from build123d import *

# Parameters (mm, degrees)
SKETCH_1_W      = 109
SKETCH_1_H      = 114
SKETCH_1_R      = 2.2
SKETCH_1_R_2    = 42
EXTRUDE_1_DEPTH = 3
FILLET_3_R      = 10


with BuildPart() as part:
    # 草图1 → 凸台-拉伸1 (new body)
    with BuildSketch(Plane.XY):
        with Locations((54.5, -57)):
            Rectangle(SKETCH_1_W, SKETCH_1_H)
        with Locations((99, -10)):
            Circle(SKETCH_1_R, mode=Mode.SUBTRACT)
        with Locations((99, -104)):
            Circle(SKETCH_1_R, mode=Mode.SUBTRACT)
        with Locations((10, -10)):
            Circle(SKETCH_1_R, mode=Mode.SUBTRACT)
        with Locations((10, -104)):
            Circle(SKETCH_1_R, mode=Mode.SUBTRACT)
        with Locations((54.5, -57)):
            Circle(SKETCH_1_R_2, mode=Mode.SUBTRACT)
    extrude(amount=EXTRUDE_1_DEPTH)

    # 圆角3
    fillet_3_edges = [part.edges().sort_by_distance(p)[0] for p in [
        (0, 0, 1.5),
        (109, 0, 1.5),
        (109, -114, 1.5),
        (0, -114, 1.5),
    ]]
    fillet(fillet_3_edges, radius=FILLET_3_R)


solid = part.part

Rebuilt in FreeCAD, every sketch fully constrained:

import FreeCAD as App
import Part
import Sketcher

V = App.Vector
Q = App.Units.Quantity


def edges_at(feature, points):
    """Names of the edges that pass closest to the given points."""
    edges = feature.Shape.Edges
    near = lambda p: min(range(len(edges)), key=lambda i: edges[i].distToShape(Part.Vertex(*p))[0])
    return sorted({f"Edge{near(p) + 1}" for p in points})

doc = App.newDocument("Part")
body = doc.addObject("PartDesign::Body", "Body")

# Sketch on XY plane
sketch1 = body.newObject("Sketcher::SketchObject", "Sketch")
sketch1.AttachmentSupport = (doc.getObject("XY_Plane"), [""])
sketch1.MapMode = "FlatFace"
sketch1.addGeometry([
    Part.LineSegment(V(0, 0, 0), V(0, -114, 0)),  # 0
    Part.LineSegment(V(0, -114, 0), V(109, -114, 0)),  # 1
    Part.LineSegment(V(109, -114, 0), V(109, 0, 0)),  # 2
    Part.LineSegment(V(109, 0, 0), V(0, 0, 0)),  # 3
    Part.Circle(V(10, -104, 0), V(0, 0, 1), 2.2),  # 4
    Part.Circle(V(99, -104, 0), V(0, 0, 1), 2.2),  # 5
    Part.Circle(V(10, -10, 0), V(0, 0, 1), 2.2),  # 6
    Part.Circle(V(54.5, -57, 0), V(0, 0, 1), 42),  # 7
    Part.Circle(V(99, -10, 0), V(0, 0, 1), 2.2),  # 8
], False)
sketch1.addConstraint([
    Sketcher.Constraint("Coincident", 0, 2, 1, 1),
    Sketcher.Constraint("Coincident", 1, 2, 2, 1),
    Sketcher.Constraint("Coincident", 2, 2, 3, 1),
    Sketcher.Constraint("Coincident", 3, 2, 0, 1),
    Sketcher.Constraint("Vertical", 0),
    Sketcher.Constraint("Horizontal", 1),
    Sketcher.Constraint("Vertical", 2),
    Sketcher.Constraint("Horizontal", 3),
    Sketcher.Constraint("Coincident", 3, 2, -1, 1),
    Sketcher.Constraint("Equal", 4, 5),
    Sketcher.Constraint("Equal", 5, 6),
    Sketcher.Constraint("Equal", 6, 8),
    Sketcher.Constraint("Horizontal", 4, 3, 5, 3),
    Sketcher.Constraint("Horizontal", 6, 3, 8, 3),
    Sketcher.Constraint("Vertical", 4, 3, 6, 3),
    Sketcher.Constraint("Vertical", 5, 3, 8, 3),
    Sketcher.Constraint("Diameter", 7, Q("84 mm")),
    Sketcher.Constraint("Diameter", 4, Q("4.4 mm")),
    Sketcher.Constraint("DistanceX", 1, 1, 1, 2, Q("109 mm")),
    Sketcher.Constraint("DistanceY", 0, 2, 0, 1, Q("114 mm")),
    Sketcher.Constraint("DistanceX", -1, 1, 4, 3, Q("10 mm")),
    Sketcher.Constraint("DistanceY", 4, 3, -1, 1, Q("104 mm")),
    Sketcher.Constraint("DistanceX", -1, 1, 5, 3, Q("99 mm")),
    Sketcher.Constraint("DistanceY", 6, 3, -1, 1, Q("10 mm")),
    Sketcher.Constraint("DistanceY", 7, 3, -1, 1, Q("57 mm")),
    Sketcher.Constraint("DistanceX", -1, 1, 7, 3, Q("54.5 mm")),
])
pad1 = body.newObject("PartDesign::Pad", "Pad")
pad1.Profile = sketch1
pad1.Length = 3
doc.recompute()

fillet = body.newObject("PartDesign::Fillet", "Fillet")
fillet.Base = (pad1, edges_at(pad1, [
    (0, 0, 1.5),
    (109, 0, 1.5),
    (109, -114, 1.5),
    (0, -114, 1.5),
]))
fillet.Radius = 10

doc.recompute()
